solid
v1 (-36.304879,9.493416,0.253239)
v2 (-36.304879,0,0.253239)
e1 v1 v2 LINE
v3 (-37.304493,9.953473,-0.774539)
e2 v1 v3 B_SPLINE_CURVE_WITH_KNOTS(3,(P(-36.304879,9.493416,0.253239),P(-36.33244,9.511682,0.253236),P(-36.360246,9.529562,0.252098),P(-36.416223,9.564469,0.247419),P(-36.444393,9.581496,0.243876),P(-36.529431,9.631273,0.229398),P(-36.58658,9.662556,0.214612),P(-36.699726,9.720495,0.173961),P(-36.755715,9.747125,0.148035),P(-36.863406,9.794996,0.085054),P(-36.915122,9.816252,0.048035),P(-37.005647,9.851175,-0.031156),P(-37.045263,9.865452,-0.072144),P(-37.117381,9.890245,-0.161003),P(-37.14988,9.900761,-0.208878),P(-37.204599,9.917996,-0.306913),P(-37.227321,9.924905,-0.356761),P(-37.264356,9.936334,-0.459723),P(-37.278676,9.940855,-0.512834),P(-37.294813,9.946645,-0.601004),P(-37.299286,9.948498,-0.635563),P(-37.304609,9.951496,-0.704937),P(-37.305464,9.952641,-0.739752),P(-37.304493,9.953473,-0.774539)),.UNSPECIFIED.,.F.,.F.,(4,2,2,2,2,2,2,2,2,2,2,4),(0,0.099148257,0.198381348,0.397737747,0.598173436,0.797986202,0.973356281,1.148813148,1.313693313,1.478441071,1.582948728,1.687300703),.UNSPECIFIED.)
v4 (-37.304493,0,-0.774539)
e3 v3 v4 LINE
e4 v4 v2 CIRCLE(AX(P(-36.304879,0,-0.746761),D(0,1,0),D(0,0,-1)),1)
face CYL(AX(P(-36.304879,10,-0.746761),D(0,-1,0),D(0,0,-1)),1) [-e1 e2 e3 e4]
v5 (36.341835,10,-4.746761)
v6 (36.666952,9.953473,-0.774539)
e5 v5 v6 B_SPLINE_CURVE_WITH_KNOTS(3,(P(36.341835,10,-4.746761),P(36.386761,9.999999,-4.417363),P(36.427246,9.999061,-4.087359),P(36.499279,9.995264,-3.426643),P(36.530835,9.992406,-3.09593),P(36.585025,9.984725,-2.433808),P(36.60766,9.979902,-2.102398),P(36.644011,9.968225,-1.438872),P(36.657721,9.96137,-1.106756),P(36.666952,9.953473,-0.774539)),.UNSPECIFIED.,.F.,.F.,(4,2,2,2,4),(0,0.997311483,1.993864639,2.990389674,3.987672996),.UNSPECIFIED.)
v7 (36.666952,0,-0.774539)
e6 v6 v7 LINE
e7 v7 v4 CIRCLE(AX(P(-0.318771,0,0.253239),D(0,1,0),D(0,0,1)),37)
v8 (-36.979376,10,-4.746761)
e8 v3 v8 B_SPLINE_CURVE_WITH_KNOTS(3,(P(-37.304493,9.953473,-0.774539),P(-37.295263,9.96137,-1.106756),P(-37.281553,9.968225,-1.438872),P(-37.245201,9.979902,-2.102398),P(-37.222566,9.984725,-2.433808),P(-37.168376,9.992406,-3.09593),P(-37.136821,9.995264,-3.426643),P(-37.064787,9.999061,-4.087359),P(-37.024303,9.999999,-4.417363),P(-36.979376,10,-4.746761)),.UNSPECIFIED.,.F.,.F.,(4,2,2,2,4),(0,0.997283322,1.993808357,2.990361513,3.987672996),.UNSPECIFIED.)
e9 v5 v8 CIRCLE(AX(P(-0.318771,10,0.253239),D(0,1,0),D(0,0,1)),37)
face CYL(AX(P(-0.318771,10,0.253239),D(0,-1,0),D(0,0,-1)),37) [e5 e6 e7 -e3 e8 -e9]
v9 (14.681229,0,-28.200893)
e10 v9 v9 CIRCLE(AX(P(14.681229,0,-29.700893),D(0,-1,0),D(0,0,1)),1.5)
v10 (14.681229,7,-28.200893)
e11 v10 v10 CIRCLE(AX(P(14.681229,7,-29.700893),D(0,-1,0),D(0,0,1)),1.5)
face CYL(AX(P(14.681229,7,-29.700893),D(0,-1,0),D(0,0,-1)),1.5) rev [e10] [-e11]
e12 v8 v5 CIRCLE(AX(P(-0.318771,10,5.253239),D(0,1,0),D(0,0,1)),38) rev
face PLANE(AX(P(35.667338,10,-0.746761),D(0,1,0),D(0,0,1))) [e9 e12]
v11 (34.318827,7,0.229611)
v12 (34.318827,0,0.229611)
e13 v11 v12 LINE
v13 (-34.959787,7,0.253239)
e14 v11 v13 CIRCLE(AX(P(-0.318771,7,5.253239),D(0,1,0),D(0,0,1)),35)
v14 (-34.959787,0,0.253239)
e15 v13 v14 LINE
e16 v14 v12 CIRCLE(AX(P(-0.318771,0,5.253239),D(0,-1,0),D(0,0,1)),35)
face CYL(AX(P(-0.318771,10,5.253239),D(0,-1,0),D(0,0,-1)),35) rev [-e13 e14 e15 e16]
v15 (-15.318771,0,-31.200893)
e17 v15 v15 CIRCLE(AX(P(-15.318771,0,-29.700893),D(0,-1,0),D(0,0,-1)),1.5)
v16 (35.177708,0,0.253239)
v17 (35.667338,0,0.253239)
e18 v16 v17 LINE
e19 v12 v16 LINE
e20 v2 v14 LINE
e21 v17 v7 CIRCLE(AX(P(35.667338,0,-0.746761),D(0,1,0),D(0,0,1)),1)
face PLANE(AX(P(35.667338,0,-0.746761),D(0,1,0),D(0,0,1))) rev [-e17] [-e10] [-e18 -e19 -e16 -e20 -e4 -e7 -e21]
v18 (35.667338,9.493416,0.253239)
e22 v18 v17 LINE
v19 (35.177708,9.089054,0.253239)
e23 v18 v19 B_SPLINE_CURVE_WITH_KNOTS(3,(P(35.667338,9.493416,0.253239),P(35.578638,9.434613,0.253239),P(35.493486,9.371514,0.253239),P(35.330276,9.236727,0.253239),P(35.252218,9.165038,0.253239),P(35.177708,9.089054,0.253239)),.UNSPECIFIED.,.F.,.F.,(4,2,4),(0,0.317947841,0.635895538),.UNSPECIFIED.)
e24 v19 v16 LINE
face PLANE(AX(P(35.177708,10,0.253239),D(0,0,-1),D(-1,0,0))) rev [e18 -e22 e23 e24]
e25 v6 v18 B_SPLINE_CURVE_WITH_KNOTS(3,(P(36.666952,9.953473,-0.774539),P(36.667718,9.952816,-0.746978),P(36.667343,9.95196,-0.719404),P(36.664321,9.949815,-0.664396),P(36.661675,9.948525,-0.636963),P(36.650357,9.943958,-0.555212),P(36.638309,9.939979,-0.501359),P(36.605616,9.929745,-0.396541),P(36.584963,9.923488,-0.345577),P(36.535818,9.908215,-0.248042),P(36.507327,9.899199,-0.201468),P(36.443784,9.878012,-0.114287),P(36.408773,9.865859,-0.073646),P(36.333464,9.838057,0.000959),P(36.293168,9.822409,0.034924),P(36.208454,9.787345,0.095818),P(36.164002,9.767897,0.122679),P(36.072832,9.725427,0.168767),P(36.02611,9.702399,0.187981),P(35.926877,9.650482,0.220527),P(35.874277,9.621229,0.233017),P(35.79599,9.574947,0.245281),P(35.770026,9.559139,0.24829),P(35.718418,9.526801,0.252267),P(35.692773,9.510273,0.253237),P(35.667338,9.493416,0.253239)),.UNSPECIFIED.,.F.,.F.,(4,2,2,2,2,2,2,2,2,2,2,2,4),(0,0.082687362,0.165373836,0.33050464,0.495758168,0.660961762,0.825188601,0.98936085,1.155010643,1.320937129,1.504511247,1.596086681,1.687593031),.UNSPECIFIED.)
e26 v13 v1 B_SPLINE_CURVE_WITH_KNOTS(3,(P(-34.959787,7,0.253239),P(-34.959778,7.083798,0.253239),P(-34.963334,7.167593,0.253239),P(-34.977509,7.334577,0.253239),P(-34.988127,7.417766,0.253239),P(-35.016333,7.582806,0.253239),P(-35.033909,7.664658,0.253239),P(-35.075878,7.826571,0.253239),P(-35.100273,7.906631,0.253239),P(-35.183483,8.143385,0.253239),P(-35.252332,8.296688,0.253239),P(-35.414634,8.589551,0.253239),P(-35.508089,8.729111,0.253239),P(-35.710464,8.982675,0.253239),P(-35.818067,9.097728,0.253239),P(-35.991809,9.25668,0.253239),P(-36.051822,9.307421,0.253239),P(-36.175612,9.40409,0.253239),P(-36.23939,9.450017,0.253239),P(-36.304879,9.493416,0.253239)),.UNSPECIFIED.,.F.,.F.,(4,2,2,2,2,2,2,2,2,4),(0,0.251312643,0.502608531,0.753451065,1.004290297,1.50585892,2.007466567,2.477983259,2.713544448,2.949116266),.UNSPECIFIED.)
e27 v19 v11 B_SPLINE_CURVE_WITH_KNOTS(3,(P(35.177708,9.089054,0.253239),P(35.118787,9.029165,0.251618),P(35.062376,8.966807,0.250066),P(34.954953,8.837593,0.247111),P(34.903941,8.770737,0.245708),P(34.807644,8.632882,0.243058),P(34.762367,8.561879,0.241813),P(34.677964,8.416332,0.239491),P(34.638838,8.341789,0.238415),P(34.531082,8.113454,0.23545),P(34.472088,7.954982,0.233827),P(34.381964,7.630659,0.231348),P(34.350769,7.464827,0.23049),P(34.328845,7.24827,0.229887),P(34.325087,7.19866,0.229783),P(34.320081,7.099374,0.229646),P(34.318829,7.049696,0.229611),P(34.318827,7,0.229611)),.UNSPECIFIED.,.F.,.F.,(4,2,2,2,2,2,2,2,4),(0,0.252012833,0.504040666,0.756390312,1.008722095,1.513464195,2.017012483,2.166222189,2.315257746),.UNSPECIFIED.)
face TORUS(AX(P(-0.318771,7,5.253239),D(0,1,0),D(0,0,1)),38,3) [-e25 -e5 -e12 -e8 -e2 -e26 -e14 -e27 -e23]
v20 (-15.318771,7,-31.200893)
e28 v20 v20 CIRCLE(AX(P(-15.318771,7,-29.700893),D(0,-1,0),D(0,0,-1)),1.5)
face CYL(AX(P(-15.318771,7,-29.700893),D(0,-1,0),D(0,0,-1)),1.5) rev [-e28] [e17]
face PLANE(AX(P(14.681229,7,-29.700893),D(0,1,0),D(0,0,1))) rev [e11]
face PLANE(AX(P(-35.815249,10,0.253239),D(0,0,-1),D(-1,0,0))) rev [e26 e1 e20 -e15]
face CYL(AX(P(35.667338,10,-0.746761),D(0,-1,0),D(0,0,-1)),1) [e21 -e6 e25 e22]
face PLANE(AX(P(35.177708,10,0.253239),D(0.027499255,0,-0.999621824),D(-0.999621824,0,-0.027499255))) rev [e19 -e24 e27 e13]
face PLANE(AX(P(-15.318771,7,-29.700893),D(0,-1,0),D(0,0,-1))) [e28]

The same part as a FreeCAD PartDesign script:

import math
import FreeCAD as App
import Part
import Sketcher

V = App.Vector


def edges_at(feature, points):
    """Names of the edges that pass closest to the given points."""
    edges = feature.Shape.Edges
    near = lambda p: min(range(len(edges)), key=lambda i: edges[i].distToShape(Part.Vertex(*p))[0])
    return sorted({f"Edge{near(p) + 1}" for p in points})

doc = App.newDocument("Part")
body = doc.addObject("PartDesign::Body", "Body")

sketch1 = doc.addObject("Sketcher::SketchObject", "Sketch")
body.addObject(sketch1)
sketch1.AttachmentSupport = (doc.XZ_Plane, [""])
sketch1.MapMode = "FlatFace"
sketch1.addGeometry([
    Part.LineSegment(V(35.18, 0.25, 0), V(35.67, 0.25, 0)),
    Part.ArcOfCircle(Part.Circle(V(35.67, -0.75, 0), V(0, 0, 1), 1), math.radians(-2), math.radians(90)),
    Part.ArcOfCircle(Part.Circle(V(-0.32, 0.25, 0), V(0, 0, 1), 37), math.radians(-178), math.radians(-2)),
    Part.ArcOfCircle(Part.Circle(V(-36.3, -0.75, 0), V(0, 0, 1), 1), math.radians(90), math.radians(182)),
    Part.LineSegment(V(-36.3, 0.25, 0), V(-34.96, 0.25, 0)),
    Part.ArcOfCircle(Part.Circle(V(-0.32, 5.25, 0), V(0, 0, 1), 35), math.radians(-172), math.radians(-8)),
    Part.LineSegment(V(34.32, 0.23, 0), V(35.18, 0.25, 0)),
], False)
sketch1.addConstraint([
    Sketcher.Constraint("Tangent", 0, 2, 1, 2),
    Sketcher.Constraint("Tangent", 1, 1, 2, 2),
    Sketcher.Constraint("Tangent", 2, 1, 3, 2),
    Sketcher.Constraint("Tangent", 3, 1, 4, 1),
    Sketcher.Constraint("Coincident", 4, 2, 5, 1),
    Sketcher.Constraint("Coincident", 5, 2, 6, 1),
    Sketcher.Constraint("Coincident", 6, 2, 0, 1),
    Sketcher.Constraint("Horizontal", 0),
    Sketcher.Constraint("Horizontal", 4),
    Sketcher.Constraint("Equal", 1, 3),
    Sketcher.Constraint("Horizontal", 1, 3, 3, 3),
    Sketcher.Constraint("Horizontal", 2, 3, 0, 2),
    Sketcher.Constraint("Vertical", 2, 3, 5, 3),
    Sketcher.Constraint("Radius", 1, 1.0),
    Sketcher.Constraint("Radius", 2, 37.0),
    Sketcher.Constraint("Radius", 5, 35.0),
    Sketcher.Constraint("DistanceY", 2, 3, 5, 3, 5.0),
    Sketcher.Constraint("DistanceX", 0, 1, 0, 2, 0.48963),
    Sketcher.Constraint("DistanceY", 1, 3, -1, 1, 0.746761),
    Sketcher.Constraint("DistanceX", 2, 3, -1, 1, 0.318771),
    Sketcher.Constraint("DistanceY", -1, 1, 5, 2, 0.229611),
])
pad1 = doc.addObject("PartDesign::Pad", "Pad")
body.addObject(pad1)
pad1.Profile = sketch1
pad1.Length = 10
pad1.Reversed = True
doc.recompute()

fillet = doc.addObject("PartDesign::Fillet", "Fillet")
body.addObject(fillet)
fillet.Base = (pad1, edges_at(pad1, [(-0.331, 10, -29.747)]))
fillet.Radius = 3

sketch2 = doc.addObject("Sketcher::SketchObject", "Sketch001")
body.addObject(sketch2)
sketch2.AttachmentSupport = (doc.XZ_Plane, [""])
sketch2.MapMode = "FlatFace"
sketch2.addGeometry([
    Part.Circle(V(-15.3, -29.7, 0), V(0, 0, 1), 1.5),
    Part.Circle(V(14.7, -29.7, 0), V(0, 0, 1), 1.5),
], False)
sketch2.addConstraint([
    Sketcher.Constraint("Equal", 0, 1),
    Sketcher.Constraint("Horizontal", 0, 3, 1, 3),
    Sketcher.Constraint("Diameter", 0, 3.0),
    Sketcher.Constraint("DistanceX", 0, 3, 1, 3, 30.0),
    Sketcher.Constraint("DistanceX", 0, 3, -1, 1, 15.318771),
    Sketcher.Constraint("DistanceY", 0, 3, -1, 1, 29.700893),
])
pocket1 = doc.addObject("PartDesign::Pocket", "Pocket")
body.addObject(pocket1)
pocket1.Profile = sketch2
pocket1.Length = 7

doc.recompute()
